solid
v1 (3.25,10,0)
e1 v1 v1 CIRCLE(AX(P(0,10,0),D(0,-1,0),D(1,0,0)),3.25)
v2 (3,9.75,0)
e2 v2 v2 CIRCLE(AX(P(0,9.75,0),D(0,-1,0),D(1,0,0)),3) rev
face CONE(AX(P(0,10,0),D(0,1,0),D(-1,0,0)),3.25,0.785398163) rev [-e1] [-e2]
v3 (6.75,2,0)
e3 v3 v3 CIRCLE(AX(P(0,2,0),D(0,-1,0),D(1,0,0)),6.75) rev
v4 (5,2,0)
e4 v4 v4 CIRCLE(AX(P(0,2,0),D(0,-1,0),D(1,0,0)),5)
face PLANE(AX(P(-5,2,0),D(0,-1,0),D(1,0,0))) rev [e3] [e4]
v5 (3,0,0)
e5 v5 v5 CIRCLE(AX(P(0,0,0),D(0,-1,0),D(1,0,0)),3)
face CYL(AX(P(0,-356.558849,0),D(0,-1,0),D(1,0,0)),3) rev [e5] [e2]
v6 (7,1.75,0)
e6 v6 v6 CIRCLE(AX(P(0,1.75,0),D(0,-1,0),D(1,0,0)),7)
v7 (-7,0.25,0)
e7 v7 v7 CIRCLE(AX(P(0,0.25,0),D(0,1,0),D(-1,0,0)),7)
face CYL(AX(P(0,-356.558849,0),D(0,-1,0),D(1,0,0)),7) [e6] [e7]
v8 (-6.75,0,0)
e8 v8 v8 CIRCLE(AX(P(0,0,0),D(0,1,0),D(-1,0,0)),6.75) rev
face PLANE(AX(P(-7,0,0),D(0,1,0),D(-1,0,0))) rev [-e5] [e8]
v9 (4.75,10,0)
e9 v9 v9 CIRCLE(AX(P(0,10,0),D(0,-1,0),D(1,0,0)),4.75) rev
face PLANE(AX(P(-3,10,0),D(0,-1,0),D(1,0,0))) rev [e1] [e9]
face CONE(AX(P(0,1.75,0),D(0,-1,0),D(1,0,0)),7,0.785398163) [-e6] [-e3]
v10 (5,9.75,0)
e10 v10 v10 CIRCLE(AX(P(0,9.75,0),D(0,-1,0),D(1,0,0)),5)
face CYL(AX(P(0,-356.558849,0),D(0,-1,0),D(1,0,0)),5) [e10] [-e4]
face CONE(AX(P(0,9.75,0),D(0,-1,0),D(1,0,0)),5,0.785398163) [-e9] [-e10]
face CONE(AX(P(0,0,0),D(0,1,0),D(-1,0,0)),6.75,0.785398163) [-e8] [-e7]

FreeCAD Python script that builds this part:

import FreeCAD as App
import Part
import Sketcher
from FreeCAD import Vector
Q = App.Units.Quantity


def edges_at(feature, points):
    """Names of the edges that pass closest to the given points."""
    edges = feature.Shape.Edges
    near = lambda p: min(range(len(edges)), key=lambda i: edges[i].distToShape(Part.Vertex(*p))[0])
    return sorted({f"Edge{near(p) + 1}" for p in points})

doc = App.newDocument("Part")
body = doc.addObject("PartDesign::Body", "Body")

sketch1 = body.newObject("Sketcher::SketchObject", "Sketch")
sketch1.AttachmentSupport = (doc.getObject("XY_Plane"), [""])
sketch1.MapMode = "FlatFace"
sketch1.addGeometry(Part.LineSegment(Vector(-3, 0, 0), Vector(-3, 10, 0)), False)
sketch1.addGeometry(Part.LineSegment(Vector(-3, 10, 0), Vector(-5, 10, 0)), False)
sketch1.addGeometry(Part.LineSegment(Vector(-5, 10, 0), Vector(-5, 2, 0)), False)
sketch1.addGeometry(Part.LineSegment(Vector(-5, 2, 0), Vector(-7, 2, 0)), False)
sketch1.addGeometry(Part.LineSegment(Vector(-7, 2, 0), Vector(-7, 0, 0)), False)
sketch1.addGeometry(Part.LineSegment(Vector(-7, 0, 0), Vector(-3, 0, 0)), False)
sketch1.addConstraint(Sketcher.Constraint("Coincident", 0, 2, 1, 1))
sketch1.addConstraint(Sketcher.Constraint("Coincident", 1, 2, 2, 1))
sketch1.addConstraint(Sketcher.Constraint("Coincident", 2, 2, 3, 1))
sketch1.addConstraint(Sketcher.Constraint("Coincident", 3, 2, 4, 1))
sketch1.addConstraint(Sketcher.Constraint("Coincident", 4, 2, 5, 1))
sketch1.addConstraint(Sketcher.Constraint("Coincident", 5, 2, 0, 1))
sketch1.addConstraint(Sketcher.Constraint("Vertical", 0))
sketch1.addConstraint(Sketcher.Constraint("Horizontal", 1))
sketch1.addConstraint(Sketcher.Constraint("Vertical", 2))
sketch1.addConstraint(Sketcher.Constraint("Horizontal", 3))
sketch1.addConstraint(Sketcher.Constraint("Vertical", 4))
sketch1.addConstraint(Sketcher.Constraint("Horizontal", 5))
sketch1.addConstraint(Sketcher.Constraint("PointOnObject", 4, 2, -1))
sketch1.addConstraint(Sketcher.Constraint("Equal", 1, 3))
sketch1.addConstraint(Sketcher.Constraint("Equal", 3, 4))
sketch1.addConstraint(Sketcher.Constraint("DistanceX", 1, 2, 1, 1, Q("2 mm")))
sketch1.addConstraint(Sketcher.Constraint("DistanceY", 0, 1, 0, 2, Q("10 mm")))
sketch1.addConstraint(Sketcher.Constraint("DistanceX", 0, 2, -1, 1, Q("3 mm")))
revolution = body.newObject("PartDesign::Revolution", "Revolution")
revolution.Profile = sketch1
revolution.ReferenceAxis = (sketch1, ["V_Axis"])
revolution.Angle = 360
doc.recompute()

chamfer = body.newObject("PartDesign::Chamfer", "Chamfer")
chamfer.Base = (revolution, edges_at(revolution, [
    (-7, 0, 0),
    (-7, 2, 0),
    (-5, 10, 0),
    (-3, 10, 0),
]))
chamfer.Size = 0.25

doc.recompute()
